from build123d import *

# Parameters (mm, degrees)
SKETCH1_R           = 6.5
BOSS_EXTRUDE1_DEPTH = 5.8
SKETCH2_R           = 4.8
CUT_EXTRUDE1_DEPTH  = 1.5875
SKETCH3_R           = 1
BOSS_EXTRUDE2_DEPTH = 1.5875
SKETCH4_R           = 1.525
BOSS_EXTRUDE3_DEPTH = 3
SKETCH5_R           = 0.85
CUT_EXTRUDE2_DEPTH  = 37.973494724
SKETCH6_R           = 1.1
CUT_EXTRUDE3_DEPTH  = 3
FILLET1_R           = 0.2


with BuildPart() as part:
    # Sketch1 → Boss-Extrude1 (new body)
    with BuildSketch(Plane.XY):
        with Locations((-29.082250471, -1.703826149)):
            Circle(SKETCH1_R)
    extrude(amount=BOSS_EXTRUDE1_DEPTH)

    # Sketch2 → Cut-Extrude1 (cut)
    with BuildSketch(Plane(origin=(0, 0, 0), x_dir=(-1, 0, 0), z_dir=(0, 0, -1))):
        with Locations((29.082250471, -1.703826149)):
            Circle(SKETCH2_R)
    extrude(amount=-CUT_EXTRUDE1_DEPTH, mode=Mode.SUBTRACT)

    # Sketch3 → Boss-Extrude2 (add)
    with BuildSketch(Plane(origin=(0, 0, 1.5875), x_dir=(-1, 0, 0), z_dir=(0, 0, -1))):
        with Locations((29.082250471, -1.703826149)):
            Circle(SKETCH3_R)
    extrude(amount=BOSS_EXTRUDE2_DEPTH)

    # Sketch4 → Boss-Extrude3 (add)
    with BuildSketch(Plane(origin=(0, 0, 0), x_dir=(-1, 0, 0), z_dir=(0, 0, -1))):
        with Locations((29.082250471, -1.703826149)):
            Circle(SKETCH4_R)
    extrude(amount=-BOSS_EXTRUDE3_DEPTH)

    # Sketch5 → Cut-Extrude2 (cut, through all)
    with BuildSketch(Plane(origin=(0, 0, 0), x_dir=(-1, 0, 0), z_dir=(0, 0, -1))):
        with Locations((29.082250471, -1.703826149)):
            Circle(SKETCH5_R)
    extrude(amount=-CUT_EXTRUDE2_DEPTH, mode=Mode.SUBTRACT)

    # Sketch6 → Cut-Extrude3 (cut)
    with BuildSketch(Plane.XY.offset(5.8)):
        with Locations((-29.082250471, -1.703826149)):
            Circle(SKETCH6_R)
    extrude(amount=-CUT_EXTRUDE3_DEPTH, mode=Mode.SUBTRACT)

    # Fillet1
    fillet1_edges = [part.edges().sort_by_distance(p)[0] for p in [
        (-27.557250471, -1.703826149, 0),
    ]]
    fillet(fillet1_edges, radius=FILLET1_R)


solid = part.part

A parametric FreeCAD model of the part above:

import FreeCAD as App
import Part
import Sketcher
Q = App.Units.Quantity


def edges_at(feature, points):
    """Names of the edges that pass closest to the given points."""
    edges = feature.Shape.Edges
    near = lambda p: min(range(len(edges)), key=lambda i: edges[i].distToShape(Part.Vertex(*p))[0])
    return sorted({f"Edge{near(p) + 1}" for p in points})

doc = App.newDocument("Part")
body = doc.addObject("PartDesign::Body", "Body")

sketch1 = body.newObject("Sketcher::SketchObject", "Sketch")
sketch1.AttachmentSupport = (doc.getObject("XY_Plane"), [""])
sketch1.MapMode = "FlatFace"
sketch1.addGeometry(Part.Circle(App.Vector(-29.08225, -1.703826, 0), App.Vector(0, 0, 1), 6.5), False)
sketch1.addConstraint(Sketcher.Constraint("Diameter", 0, Q("13 mm")))
sketch1.addConstraint(Sketcher.Constraint("DistanceX", 0, 3, -1, 1, Q("29.08225 mm")))
sketch1.addConstraint(Sketcher.Constraint("DistanceY", 0, 3, -1, 1, Q("1.703826 mm")))
pad1 = body.newObject("PartDesign::Pad", "Pad")
pad1.Profile = sketch1
pad1.Length = 5.8

sketch2 = body.newObject("Sketcher::SketchObject", "Sketch001")
sketch2.AttachmentSupport = (doc.getObject("XY_Plane"), [""])
sketch2.MapMode = "FlatFace"
sketch2.addGeometry(Part.Circle(App.Vector(-29.08225, -1.703826, 0), App.Vector(0, 0, 1), 4.8), False)
sketch2.addConstraint(Sketcher.Constraint("Diameter", 0, Q("9.6 mm")))
sketch2.addConstraint(Sketcher.Constraint("DistanceX", 0, 3, -1, 1, Q("29.08225 mm")))
sketch2.addConstraint(Sketcher.Constraint("DistanceY", 0, 3, -1, 1, Q("1.703826 mm")))
pocket1 = body.newObject("PartDesign::Pocket", "Pocket")
pocket1.Profile = sketch2
pocket1.Length = 1.5875
pocket1.Reversed = True

sketch3 = body.newObject("Sketcher::SketchObject", "Sketch002")
sketch3.AttachmentSupport = (doc.getObject("XY_Plane"), [""])
sketch3.MapMode = "FlatFace"
sketch3.AttachmentOffset = App.Placement(App.Vector(0, 0, 1.5875), App.Rotation())
sketch3.addGeometry(Part.Circle(App.Vector(-29.08225, -1.703826, 0), App.Vector(0, 0, 1), 1), False)
sketch3.addConstraint(Sketcher.Constraint("Diameter", 0, Q("2 mm")))
sketch3.addConstraint(Sketcher.Constraint("DistanceX", 0, 3, -1, 1, Q("29.08225 mm")))
sketch3.addConstraint(Sketcher.Constraint("DistanceY", 0, 3, -1, 1, Q("1.703826 mm")))
pad2 = body.newObject("PartDesign::Pad", "Pad001")
pad2.Profile = sketch3
pad2.Length = 1.5875
pad2.Reversed = True

sketch4 = body.newObject("Sketcher::SketchObject", "Sketch003")
sketch4.AttachmentSupport = (doc.getObject("XY_Plane"), [""])
sketch4.MapMode = "FlatFace"
sketch4.addGeometry(Part.Circle(App.Vector(-29.08225, -1.703826, 0), App.Vector(0, 0, 1), 1.525), False)
sketch4.addConstraint(Sketcher.Constraint("Diameter", 0, Q("3.05 mm")))
sketch4.addConstraint(Sketcher.Constraint("DistanceX", 0, 3, -1, 1, Q("29.08225 mm")))
sketch4.addConstraint(Sketcher.Constraint("DistanceY", 0, 3, -1, 1, Q("1.703826 mm")))
pad3 = body.newObject("PartDesign::Pad", "Pad002")
pad3.Profile = sketch4
pad3.Length = 3

sketch5 = body.newObject("Sketcher::SketchObject", "Sketch004")
sketch5.AttachmentSupport = (doc.getObject("XY_Plane"), [""])
sketch5.MapMode = "FlatFace"
sketch5.addGeometry(Part.Circle(App.Vector(-29.08225, -1.703826, 0), App.Vector(0, 0, 1), 0.85), False)
sketch5.addConstraint(Sketcher.Constraint("Diameter", 0, Q("1.7 mm")))
sketch5.addConstraint(Sketcher.Constraint("DistanceX", 0, 3, -1, 1, Q("29.08225 mm")))
sketch5.addConstraint(Sketcher.Constraint("DistanceY", 0, 3, -1, 1, Q("1.703826 mm")))
pocket2 = body.newObject("PartDesign::Pocket", "Pocket001")
pocket2.Profile = sketch5
pocket2.Type = "ThroughAll"
pocket2.Reversed = True

sketch6 = body.newObject("Sketcher::SketchObject", "Sketch005")
sketch6.AttachmentSupport = (doc.getObject("XY_Plane"), [""])
sketch6.MapMode = "FlatFace"
sketch6.AttachmentOffset = App.Placement(App.Vector(0, 0, 5.8), App.Rotation())
sketch6.addGeometry(Part.Circle(App.Vector(-29.08225, -1.703826, 0), App.Vector(0, 0, 1), 1.1), False)
sketch6.addConstraint(Sketcher.Constraint("Diameter", 0, Q("2.2 mm")))
sketch6.addConstraint(Sketcher.Constraint("DistanceX", 0, 3, -1, 1, Q("29.08225 mm")))
sketch6.addConstraint(Sketcher.Constraint("DistanceY", 0, 3, -1, 1, Q("1.703826 mm")))
pocket3 = body.newObject("PartDesign::Pocket", "Pocket002")
pocket3.Profile = sketch6
pocket3.Length = 3
doc.recompute()

fillet = body.newObject("PartDesign::Fillet", "Fillet")
fillet.Base = (pocket3, edges_at(pocket3, [(-27.557, -1.704, 0)]))
fillet.Radius = 0.2

doc.recompute()
